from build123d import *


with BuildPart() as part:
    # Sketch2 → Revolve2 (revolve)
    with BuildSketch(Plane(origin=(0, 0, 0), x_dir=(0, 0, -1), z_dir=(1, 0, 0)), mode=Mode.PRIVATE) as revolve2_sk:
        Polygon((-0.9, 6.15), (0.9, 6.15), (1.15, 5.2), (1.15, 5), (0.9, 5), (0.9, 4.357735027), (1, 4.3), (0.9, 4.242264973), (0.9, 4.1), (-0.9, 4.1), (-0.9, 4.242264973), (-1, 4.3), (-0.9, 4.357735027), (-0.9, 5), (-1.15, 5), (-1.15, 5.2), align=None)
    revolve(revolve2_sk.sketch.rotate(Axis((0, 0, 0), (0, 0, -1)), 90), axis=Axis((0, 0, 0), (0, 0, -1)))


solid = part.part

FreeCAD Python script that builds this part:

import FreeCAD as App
import Part
import Sketcher
Q = App.Units.Quantity

doc = App.newDocument("Part")
body = doc.addObject("PartDesign::Body", "Body")

# Sketch on YZ plane
sketch1 = body.newObject("Sketcher::SketchObject", "Sketch")
sketch1.AttachmentSupport = (doc.getObject("YZ_Plane"), [""])
sketch1.MapMode = "FlatFace"
sketch1.addGeometry([
    Part.LineSegment(App.Vector(6.15, -0.9, 0), App.Vector(6.15, 0.9, 0)),  # 0
    Part.LineSegment(App.Vector(6.15, 0.9, 0), App.Vector(5.2, 1.15, 0)),  # 1
    Part.LineSegment(App.Vector(5.2, 1.15, 0), App.Vector(5, 1.15, 0)),  # 2
    Part.LineSegment(App.Vector(5, 1.15, 0), App.Vector(5, 0.9, 0)),  # 3
    Part.LineSegment(App.Vector(5, 0.9, 0), App.Vector(4.36, 0.9, 0)),  # 4
    Part.LineSegment(App.Vector(4.36, 0.9, 0), App.Vector(4.3, 1, 0)),  # 5
    Part.LineSegment(App.Vector(4.3, 1, 0), App.Vector(4.24, 0.9, 0)),  # 6
    Part.LineSegment(App.Vector(4.24, 0.9, 0), App.Vector(4.1, 0.9, 0)),  # 7
    Part.LineSegment(App.Vector(4.1, 0.9, 0), App.Vector(4.1, -0.9, 0)),  # 8
    Part.LineSegment(App.Vector(4.1, -0.9, 0), App.Vector(4.24, -0.9, 0)),  # 9
    Part.LineSegment(App.Vector(4.24, -0.9, 0), App.Vector(4.3, -1, 0)),  # 10
    Part.LineSegment(App.Vector(4.3, -1, 0), App.Vector(4.36, -0.9, 0)),  # 11
    Part.LineSegment(App.Vector(4.36, -0.9, 0), App.Vector(5, -0.9, 0)),  # 12
    Part.LineSegment(App.Vector(5, -0.9, 0), App.Vector(5, -1.15, 0)),  # 13
    Part.LineSegment(App.Vector(5, -1.15, 0), App.Vector(5.2, -1.15, 0)),  # 14
    Part.LineSegment(App.Vector(5.2, -1.15, 0), App.Vector(6.15, -0.9, 0)),  # 15
], False)
sketch1.addConstraint([
    Sketcher.Constraint("Coincident", 0, 2, 1, 1),
    Sketcher.Constraint("Coincident", 1, 2, 2, 1),
    Sketcher.Constraint("Coincident", 2, 2, 3, 1),
    Sketcher.Constraint("Coincident", 3, 2, 4, 1),
    Sketcher.Constraint("Coincident", 4, 2, 5, 1),
    Sketcher.Constraint("Coincident", 5, 2, 6, 1),
    Sketcher.Constraint("Coincident", 6, 2, 7, 1),
    Sketcher.Constraint("Coincident", 7, 2, 8, 1),
    Sketcher.Constraint("Coincident", 8, 2, 9, 1),
    Sketcher.Constraint("Coincident", 9, 2, 10, 1),
    Sketcher.Constraint("Coincident", 10, 2, 11, 1),
    Sketcher.Constraint("Coincident", 11, 2, 12, 1),
    Sketcher.Constraint("Coincident", 12, 2, 13, 1),
    Sketcher.Constraint("Coincident", 13, 2, 14, 1),
    Sketcher.Constraint("Coincident", 14, 2, 15, 1),
    Sketcher.Constraint("Coincident", 15, 2, 0, 1),
    Sketcher.Constraint("Vertical", 0),
    Sketcher.Constraint("Horizontal", 2),
    Sketcher.Constraint("Vertical", 3),
    Sketcher.Constraint("Horizontal", 4),
    Sketcher.Constraint("Horizontal", 7),
    Sketcher.Constraint("Vertical", 8),
    Sketcher.Constraint("Horizontal", 9),
    Sketcher.Constraint("Horizontal", 12),
    Sketcher.Constraint("Vertical", 13),
    Sketcher.Constraint("Horizontal", 14),
    Sketcher.Constraint("Symmetric", 6, 2, 9, 2, -1),
    Sketcher.Constraint("Symmetric", 5, 2, 10, 2, -1),
    Sketcher.Constraint("Symmetric", 4, 2, 11, 2, -1),
    Sketcher.Constraint("Symmetric", 2, 2, 13, 2, -1),
    Sketcher.Constraint("Parallel", 5, 10),
    Sketcher.Constraint("Horizontal", 0, 2, 3, 2),
    Sketcher.Constraint("Horizontal", 4, 2, 6, 2),
    Sketcher.Constraint("Horizontal", 12, 2, 15, 2),
    Sketcher.Constraint("Vertical", 1, 2, 14, 2),
    Sketcher.Constraint("Angle", 5, Q("120 deg")),
    Sketcher.Constraint("DistanceX", 2, 2, 2, 1, 0.2),
    Sketcher.Constraint("DistanceY", 0, 1, 0, 2, 1.8),
    Sketcher.Constraint("DistanceX", -1, 1, 2, 2, 5.0),
    Sketcher.Constraint("DistanceY", -1, 1, 5, 2, 1.0),
    Sketcher.Constraint("DistanceY", 3, 2, 3, 1, 0.25),
    Sketcher.Constraint("DistanceX", -1, 1, 5, 2, 4.3),
    Sketcher.Constraint("DistanceX", -1, 1, 7, 2, 4.1),
    Sketcher.Constraint("DistanceX", -1, 1, 0, 2, 6.15),
])
revolution = body.newObject("PartDesign::Revolution", "Revolution")
revolution.Profile = sketch1
revolution.ReferenceAxis = (sketch1, ["V_Axis"])
revolution.Angle = 360

doc.recompute()
